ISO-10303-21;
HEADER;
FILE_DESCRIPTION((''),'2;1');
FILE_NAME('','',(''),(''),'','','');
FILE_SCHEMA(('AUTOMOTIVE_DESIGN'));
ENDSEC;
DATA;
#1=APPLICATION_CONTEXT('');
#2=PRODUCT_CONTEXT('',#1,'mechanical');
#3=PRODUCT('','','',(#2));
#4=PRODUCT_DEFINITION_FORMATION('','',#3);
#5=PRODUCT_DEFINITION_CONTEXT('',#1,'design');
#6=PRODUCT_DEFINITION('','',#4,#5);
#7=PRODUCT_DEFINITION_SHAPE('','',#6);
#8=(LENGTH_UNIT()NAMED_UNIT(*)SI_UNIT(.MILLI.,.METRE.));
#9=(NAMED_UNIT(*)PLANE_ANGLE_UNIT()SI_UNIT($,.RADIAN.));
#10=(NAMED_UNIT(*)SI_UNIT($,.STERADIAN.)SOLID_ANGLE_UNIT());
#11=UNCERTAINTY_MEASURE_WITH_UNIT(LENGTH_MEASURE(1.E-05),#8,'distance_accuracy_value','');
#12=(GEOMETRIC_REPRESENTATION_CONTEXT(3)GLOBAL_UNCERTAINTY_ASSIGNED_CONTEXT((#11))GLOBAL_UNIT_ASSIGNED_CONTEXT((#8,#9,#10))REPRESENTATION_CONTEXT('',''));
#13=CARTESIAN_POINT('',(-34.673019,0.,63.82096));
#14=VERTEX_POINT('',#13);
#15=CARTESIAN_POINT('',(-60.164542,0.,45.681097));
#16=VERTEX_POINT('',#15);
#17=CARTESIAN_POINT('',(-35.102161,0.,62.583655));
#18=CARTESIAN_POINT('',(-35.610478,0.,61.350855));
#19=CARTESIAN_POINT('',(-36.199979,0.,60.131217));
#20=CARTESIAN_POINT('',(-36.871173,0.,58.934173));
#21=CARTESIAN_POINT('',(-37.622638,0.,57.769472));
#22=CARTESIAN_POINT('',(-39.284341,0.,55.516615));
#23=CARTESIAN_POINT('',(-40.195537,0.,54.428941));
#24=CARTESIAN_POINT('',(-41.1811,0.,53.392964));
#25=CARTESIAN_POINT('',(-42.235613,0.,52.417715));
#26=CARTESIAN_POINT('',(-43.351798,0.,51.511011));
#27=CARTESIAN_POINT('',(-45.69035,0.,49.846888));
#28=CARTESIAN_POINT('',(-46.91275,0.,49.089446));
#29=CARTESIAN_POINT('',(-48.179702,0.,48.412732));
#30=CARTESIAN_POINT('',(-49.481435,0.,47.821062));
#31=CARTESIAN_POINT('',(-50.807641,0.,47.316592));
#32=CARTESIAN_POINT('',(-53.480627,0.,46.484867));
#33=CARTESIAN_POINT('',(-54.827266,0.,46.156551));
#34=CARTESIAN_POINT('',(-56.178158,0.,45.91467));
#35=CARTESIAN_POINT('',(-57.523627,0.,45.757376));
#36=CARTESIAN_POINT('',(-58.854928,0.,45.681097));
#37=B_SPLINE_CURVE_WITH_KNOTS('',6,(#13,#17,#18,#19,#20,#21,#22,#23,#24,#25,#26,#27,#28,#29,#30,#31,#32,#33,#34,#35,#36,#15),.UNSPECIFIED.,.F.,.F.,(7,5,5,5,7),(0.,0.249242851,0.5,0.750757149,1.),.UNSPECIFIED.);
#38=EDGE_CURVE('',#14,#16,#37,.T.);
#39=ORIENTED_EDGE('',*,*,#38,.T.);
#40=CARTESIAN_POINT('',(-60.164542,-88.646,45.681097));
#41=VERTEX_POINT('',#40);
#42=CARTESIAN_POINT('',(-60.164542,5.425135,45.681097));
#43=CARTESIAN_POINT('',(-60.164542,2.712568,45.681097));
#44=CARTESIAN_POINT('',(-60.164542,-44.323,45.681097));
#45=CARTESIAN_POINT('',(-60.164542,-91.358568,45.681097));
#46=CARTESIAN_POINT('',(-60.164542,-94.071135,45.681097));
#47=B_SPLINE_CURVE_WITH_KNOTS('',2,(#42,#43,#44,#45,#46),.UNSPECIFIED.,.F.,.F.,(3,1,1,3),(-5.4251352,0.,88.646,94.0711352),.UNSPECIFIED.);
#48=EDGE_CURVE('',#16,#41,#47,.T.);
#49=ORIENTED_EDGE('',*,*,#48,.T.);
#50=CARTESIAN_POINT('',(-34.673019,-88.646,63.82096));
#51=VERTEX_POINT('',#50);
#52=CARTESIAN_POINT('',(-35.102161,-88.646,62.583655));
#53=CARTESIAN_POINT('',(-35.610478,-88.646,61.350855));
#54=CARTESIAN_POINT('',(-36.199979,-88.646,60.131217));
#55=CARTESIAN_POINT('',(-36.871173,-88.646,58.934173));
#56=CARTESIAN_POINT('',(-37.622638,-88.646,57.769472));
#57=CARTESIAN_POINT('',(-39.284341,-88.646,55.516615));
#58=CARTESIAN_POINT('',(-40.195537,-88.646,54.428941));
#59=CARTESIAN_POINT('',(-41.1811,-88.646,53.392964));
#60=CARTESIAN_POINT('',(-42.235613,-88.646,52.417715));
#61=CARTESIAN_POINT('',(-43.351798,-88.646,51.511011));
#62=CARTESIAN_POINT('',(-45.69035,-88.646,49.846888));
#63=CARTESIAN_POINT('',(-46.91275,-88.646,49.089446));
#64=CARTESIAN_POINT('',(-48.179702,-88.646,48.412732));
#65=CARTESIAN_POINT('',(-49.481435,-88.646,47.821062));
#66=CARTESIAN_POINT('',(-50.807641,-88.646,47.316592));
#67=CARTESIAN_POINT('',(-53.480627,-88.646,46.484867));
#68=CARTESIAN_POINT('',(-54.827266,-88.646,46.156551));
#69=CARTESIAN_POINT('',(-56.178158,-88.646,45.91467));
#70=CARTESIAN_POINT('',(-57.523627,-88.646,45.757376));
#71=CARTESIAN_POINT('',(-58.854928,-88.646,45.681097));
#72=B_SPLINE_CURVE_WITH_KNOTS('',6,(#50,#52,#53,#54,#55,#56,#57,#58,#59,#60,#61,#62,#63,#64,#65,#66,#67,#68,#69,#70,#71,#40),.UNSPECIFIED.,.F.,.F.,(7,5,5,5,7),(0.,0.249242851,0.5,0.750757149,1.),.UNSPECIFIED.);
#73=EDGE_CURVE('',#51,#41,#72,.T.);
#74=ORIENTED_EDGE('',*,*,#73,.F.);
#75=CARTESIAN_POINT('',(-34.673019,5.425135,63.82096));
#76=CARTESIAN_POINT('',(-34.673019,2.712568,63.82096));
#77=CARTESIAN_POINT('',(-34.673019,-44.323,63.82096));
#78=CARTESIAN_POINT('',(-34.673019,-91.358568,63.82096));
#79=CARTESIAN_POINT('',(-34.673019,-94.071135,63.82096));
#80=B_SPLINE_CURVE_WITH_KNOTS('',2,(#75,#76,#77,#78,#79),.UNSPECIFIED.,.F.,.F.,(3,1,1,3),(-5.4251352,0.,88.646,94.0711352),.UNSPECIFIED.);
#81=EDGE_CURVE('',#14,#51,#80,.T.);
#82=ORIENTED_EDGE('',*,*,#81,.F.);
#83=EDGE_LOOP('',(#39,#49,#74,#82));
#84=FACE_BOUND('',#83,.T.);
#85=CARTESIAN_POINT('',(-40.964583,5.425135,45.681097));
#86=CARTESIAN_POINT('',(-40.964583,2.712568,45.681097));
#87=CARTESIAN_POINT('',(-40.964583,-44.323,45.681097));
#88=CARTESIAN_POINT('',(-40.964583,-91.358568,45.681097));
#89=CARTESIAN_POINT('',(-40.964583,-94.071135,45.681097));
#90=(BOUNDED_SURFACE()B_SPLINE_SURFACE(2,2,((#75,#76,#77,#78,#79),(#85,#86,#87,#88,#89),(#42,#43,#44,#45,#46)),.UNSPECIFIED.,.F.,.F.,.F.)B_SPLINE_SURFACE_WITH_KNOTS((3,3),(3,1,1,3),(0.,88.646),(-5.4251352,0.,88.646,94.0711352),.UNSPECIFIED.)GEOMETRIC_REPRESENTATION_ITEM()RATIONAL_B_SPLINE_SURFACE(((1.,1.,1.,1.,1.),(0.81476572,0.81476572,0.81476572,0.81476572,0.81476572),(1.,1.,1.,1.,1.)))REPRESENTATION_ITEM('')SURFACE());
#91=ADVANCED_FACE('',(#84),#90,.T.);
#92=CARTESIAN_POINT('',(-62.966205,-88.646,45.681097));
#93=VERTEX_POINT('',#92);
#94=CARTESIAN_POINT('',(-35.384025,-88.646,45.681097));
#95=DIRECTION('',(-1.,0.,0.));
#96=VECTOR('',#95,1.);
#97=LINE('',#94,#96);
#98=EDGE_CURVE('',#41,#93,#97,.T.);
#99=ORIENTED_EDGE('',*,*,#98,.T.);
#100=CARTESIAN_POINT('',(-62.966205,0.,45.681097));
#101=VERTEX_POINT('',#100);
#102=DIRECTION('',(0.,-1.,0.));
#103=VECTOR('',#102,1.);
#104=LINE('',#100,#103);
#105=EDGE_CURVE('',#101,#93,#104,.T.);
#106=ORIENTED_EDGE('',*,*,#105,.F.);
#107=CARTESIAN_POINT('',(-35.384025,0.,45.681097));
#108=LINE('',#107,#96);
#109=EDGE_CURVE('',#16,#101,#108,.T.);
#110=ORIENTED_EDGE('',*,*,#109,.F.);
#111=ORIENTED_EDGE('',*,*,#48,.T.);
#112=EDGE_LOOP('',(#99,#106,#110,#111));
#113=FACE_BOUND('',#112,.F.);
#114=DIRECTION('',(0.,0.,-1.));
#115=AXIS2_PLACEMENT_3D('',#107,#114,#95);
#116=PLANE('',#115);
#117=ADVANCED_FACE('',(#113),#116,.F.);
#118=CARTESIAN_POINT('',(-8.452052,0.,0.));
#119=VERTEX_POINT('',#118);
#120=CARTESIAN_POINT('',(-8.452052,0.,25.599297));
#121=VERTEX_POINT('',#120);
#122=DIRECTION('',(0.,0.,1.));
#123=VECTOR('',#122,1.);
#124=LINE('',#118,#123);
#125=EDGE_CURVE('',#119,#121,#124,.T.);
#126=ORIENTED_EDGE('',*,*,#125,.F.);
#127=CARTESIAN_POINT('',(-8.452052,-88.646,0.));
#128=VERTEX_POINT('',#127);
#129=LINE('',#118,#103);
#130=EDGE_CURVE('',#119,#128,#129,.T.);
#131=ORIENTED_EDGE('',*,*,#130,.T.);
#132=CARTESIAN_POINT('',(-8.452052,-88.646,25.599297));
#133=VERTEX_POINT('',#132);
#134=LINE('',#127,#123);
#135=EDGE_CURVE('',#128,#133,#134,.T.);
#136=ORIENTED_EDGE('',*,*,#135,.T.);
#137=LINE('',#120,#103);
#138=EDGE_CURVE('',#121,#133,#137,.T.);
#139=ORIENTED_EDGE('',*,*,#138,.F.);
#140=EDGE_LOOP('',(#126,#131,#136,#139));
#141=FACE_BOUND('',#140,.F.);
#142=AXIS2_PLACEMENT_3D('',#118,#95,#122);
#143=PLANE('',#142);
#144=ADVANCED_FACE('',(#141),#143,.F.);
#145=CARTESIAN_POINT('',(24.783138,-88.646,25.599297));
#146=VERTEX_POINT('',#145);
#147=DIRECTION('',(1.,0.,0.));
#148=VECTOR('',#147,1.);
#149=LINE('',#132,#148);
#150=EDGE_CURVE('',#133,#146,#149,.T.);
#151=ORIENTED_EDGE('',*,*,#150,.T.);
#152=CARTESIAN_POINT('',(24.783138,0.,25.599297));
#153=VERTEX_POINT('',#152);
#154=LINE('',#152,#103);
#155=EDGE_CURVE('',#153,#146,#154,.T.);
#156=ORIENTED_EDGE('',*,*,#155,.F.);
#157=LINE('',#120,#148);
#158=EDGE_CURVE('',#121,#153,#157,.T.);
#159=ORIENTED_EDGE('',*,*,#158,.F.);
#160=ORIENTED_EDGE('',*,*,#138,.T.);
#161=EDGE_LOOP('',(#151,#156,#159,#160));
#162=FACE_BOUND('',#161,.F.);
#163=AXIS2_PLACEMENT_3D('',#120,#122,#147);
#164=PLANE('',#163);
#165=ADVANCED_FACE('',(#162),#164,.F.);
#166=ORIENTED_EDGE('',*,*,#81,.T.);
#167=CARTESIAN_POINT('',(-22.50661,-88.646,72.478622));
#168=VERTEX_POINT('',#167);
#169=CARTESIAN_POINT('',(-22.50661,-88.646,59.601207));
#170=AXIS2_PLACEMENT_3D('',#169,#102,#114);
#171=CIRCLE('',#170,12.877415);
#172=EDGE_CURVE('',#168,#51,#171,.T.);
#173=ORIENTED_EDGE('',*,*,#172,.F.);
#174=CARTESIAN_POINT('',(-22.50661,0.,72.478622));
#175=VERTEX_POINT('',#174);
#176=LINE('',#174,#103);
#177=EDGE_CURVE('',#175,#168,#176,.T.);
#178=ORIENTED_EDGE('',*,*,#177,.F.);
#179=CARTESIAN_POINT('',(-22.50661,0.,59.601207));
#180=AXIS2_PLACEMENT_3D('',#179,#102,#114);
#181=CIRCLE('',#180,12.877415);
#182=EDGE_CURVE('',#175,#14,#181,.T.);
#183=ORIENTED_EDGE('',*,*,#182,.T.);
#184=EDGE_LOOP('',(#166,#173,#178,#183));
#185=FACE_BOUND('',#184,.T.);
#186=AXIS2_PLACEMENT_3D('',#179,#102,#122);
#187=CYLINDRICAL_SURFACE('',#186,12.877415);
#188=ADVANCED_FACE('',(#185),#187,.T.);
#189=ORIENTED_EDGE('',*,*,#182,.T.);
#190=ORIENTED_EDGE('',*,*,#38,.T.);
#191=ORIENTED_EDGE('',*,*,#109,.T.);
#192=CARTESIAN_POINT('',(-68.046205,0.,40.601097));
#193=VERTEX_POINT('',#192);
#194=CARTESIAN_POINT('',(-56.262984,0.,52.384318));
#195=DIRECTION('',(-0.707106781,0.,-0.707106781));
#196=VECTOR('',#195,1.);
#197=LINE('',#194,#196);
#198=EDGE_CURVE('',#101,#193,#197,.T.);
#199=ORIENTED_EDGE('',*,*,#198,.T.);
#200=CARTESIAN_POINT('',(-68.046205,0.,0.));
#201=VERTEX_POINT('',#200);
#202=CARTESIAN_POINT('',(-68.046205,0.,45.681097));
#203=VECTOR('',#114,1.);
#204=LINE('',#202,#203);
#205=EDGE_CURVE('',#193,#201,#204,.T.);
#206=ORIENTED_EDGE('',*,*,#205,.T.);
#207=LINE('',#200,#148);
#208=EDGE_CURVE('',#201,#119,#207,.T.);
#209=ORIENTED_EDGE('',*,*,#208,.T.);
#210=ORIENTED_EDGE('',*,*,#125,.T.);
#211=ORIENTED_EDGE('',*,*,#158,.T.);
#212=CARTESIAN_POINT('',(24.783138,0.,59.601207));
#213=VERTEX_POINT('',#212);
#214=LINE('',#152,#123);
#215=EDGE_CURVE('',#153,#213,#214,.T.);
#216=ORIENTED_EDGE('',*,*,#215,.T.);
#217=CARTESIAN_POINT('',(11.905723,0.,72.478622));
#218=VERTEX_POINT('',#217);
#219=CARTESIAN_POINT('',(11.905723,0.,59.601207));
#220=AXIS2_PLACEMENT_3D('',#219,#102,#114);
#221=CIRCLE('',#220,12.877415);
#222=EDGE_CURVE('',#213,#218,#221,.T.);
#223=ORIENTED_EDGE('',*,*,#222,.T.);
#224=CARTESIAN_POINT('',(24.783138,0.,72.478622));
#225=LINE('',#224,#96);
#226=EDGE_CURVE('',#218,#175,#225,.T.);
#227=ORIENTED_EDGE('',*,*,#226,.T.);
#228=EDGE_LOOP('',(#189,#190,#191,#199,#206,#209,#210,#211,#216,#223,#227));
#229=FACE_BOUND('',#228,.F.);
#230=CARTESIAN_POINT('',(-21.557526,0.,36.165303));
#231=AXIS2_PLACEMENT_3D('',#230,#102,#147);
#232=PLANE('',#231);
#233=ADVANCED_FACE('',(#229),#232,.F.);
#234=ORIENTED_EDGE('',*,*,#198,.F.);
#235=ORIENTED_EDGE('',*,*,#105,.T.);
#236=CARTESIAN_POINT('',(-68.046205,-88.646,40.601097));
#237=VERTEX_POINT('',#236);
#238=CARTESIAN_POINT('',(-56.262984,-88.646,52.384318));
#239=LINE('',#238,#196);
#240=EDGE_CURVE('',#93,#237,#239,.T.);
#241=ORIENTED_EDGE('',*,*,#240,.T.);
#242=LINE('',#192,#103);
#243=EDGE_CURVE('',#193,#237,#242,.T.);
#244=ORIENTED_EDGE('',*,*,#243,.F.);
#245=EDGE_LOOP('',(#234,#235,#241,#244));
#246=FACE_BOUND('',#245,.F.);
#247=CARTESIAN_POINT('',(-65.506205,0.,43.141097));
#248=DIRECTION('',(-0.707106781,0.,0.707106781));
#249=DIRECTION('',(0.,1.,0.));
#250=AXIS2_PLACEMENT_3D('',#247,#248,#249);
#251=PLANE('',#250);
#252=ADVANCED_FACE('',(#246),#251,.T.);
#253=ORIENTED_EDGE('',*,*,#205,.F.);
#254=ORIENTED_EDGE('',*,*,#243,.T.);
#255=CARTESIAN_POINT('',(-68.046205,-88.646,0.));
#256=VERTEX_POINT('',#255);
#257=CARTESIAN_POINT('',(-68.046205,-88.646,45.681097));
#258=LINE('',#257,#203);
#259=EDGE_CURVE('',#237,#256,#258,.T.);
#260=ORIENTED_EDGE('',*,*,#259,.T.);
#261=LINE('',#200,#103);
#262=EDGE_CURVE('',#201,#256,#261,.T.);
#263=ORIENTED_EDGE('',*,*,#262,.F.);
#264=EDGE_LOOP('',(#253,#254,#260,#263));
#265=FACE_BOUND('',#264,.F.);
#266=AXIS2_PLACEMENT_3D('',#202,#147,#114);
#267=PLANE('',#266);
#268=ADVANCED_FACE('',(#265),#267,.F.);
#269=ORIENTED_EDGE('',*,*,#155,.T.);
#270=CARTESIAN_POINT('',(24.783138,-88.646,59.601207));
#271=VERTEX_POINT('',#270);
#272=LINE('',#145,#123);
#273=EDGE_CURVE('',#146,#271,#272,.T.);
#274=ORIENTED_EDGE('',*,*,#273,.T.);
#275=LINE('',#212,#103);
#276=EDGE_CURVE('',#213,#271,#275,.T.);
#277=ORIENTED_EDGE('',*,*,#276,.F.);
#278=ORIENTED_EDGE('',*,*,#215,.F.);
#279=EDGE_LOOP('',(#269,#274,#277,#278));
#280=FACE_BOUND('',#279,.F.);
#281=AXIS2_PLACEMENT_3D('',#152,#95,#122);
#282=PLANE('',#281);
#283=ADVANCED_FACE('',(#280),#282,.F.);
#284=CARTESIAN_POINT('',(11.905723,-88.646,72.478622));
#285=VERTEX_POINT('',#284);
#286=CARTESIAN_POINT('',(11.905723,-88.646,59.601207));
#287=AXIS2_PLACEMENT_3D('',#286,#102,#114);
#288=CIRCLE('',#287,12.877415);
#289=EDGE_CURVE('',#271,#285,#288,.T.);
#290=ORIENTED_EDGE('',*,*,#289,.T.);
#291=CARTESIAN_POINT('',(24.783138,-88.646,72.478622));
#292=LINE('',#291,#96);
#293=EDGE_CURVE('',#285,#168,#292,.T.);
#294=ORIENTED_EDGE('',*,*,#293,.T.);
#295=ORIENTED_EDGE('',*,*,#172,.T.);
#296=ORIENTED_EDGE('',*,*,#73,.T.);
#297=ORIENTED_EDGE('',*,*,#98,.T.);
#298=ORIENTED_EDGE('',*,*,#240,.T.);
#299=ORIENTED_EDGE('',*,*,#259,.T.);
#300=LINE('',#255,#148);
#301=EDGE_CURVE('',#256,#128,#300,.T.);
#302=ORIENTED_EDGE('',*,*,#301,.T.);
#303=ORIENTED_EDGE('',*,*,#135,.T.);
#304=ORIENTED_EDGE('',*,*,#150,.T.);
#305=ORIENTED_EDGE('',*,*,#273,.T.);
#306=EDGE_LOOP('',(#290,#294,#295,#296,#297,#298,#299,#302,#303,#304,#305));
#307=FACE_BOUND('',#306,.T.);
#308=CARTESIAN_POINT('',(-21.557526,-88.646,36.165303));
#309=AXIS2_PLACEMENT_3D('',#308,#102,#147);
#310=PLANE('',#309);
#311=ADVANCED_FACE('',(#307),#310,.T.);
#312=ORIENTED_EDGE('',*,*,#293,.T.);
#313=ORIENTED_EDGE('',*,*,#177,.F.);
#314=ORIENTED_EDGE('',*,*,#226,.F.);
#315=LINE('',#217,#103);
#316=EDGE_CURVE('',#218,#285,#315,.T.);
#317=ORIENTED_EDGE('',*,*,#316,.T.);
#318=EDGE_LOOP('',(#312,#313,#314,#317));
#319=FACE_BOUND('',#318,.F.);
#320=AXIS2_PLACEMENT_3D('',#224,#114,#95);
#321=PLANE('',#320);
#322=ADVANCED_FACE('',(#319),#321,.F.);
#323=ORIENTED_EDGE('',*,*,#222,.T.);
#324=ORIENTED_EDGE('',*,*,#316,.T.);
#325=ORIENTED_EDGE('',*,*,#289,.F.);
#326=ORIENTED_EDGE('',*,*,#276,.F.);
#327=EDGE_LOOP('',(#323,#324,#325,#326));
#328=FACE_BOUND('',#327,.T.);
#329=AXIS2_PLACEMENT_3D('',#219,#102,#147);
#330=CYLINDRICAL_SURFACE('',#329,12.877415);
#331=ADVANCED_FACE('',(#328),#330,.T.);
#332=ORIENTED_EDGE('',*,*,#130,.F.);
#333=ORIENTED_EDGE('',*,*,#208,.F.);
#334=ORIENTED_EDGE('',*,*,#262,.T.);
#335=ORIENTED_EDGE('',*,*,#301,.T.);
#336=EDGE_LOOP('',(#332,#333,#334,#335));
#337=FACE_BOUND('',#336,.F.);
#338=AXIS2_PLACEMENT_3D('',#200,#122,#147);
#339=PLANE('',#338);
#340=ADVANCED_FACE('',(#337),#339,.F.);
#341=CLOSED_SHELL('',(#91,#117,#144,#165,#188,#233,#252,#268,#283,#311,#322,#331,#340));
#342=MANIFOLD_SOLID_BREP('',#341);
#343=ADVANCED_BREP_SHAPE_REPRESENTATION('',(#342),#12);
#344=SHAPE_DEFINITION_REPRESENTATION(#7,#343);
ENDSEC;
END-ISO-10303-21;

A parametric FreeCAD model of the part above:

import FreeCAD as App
import Part
import Sketcher

V = App.Vector
Q = App.Units.Quantity


def edges_at(feature, points):
    """Names of the edges that pass closest to the given points."""
    edges = feature.Shape.Edges
    near = lambda p: min(range(len(edges)), key=lambda i: edges[i].distToShape(Part.Vertex(*p))[0])
    return sorted({f"Edge{near(p) + 1}" for p in points})


def add_polygon(sketch, points):
    """Adds a closed chain of lines whose ends are joined by coincident constraints."""
    first, n = sketch.GeometryCount, len(points)
    for a, b in zip(points, points[1:] + points[:1]):
        sketch.addGeometry(Part.LineSegment(App.Vector(*a, 0), App.Vector(*b, 0)), False)
    for i in range(n):
        sketch.addConstraint(Sketcher.Constraint("Coincident", first + i, 2, first + (i + 1) % n, 1))

doc = App.newDocument("Part")
body = doc.addObject("PartDesign::Body", "Body")

# Sketch on XZ plane
sketch1 = body.newObject("Sketcher::SketchObject", "Sketch")
sketch1.AttachmentSupport = (doc.getObject("XZ_Plane"), [""])
sketch1.MapMode = "FlatFace"
add_polygon(sketch1, [(-35, 46), (-68, 46), (-68, 0), (-8, 0), (-8, 26), (25, 26), (25, 72), (-35, 72)])  # lines 0-7
sketch1.addConstraint(Sketcher.Constraint("Horizontal", 0))
sketch1.addConstraint(Sketcher.Constraint("Vertical", 1))
sketch1.addConstraint(Sketcher.Constraint("Horizontal", 2))
sketch1.addConstraint(Sketcher.Constraint("Vertical", 3))
sketch1.addConstraint(Sketcher.Constraint("Horizontal", 4))
sketch1.addConstraint(Sketcher.Constraint("Vertical", 5))
sketch1.addConstraint(Sketcher.Constraint("Horizontal", 6))
sketch1.addConstraint(Sketcher.Constraint("Vertical", 7))
sketch1.addConstraint(Sketcher.Constraint("PointOnObject", 1, 2, -1))
sketch1.addConstraint(Sketcher.Constraint("DistanceX", 0, 2, 0, 1, 32.66218))
sketch1.addConstraint(Sketcher.Constraint("DistanceX", 4, 1, 4, 2, 33.23519))
sketch1.addConstraint(Sketcher.Constraint("DistanceY", 3, 2, 0, 2, 20.0818))
sketch1.addConstraint(Sketcher.Constraint("DistanceX", 2, 1, 2, 2, 59.594153))
sketch1.addConstraint(Sketcher.Constraint("DistanceY", 1, 2, 1, 1, 45.681097))
sketch1.addConstraint(Sketcher.Constraint("DistanceY", 5, 1, 5, 2, 46.879325))
sketch1.addConstraint(Sketcher.Constraint("DistanceX", -1, 1, 4, 2, 24.783138))
pad1 = body.newObject("PartDesign::Pad", "Pad")
pad1.Profile = sketch1
pad1.Length = Q("3.49 in")
doc.recompute()

fillet = body.newObject("PartDesign::Fillet", "Fillet")
fillet.Base = (pad1, edges_at(pad1, [(24.783, -44.323, 72.479), (-35.384, -44.323, 72.479)]))
fillet.Radius = 12.877415
doc.recompute()

fillet2 = body.newObject("PartDesign::Fillet", "Fillet001")
fillet2.Base = (fillet, edges_at(fillet, [(-35.384, -44.323, 45.681)]))
fillet2.Radius = 26.981251
doc.recompute()

chamfer = body.newObject("PartDesign::Chamfer", "Chamfer")
chamfer.Base = (fillet2, edges_at(fillet2, [(-68.046, -44.323, 45.681)]))
chamfer.Size = Q("0.2 in")

doc.recompute()
